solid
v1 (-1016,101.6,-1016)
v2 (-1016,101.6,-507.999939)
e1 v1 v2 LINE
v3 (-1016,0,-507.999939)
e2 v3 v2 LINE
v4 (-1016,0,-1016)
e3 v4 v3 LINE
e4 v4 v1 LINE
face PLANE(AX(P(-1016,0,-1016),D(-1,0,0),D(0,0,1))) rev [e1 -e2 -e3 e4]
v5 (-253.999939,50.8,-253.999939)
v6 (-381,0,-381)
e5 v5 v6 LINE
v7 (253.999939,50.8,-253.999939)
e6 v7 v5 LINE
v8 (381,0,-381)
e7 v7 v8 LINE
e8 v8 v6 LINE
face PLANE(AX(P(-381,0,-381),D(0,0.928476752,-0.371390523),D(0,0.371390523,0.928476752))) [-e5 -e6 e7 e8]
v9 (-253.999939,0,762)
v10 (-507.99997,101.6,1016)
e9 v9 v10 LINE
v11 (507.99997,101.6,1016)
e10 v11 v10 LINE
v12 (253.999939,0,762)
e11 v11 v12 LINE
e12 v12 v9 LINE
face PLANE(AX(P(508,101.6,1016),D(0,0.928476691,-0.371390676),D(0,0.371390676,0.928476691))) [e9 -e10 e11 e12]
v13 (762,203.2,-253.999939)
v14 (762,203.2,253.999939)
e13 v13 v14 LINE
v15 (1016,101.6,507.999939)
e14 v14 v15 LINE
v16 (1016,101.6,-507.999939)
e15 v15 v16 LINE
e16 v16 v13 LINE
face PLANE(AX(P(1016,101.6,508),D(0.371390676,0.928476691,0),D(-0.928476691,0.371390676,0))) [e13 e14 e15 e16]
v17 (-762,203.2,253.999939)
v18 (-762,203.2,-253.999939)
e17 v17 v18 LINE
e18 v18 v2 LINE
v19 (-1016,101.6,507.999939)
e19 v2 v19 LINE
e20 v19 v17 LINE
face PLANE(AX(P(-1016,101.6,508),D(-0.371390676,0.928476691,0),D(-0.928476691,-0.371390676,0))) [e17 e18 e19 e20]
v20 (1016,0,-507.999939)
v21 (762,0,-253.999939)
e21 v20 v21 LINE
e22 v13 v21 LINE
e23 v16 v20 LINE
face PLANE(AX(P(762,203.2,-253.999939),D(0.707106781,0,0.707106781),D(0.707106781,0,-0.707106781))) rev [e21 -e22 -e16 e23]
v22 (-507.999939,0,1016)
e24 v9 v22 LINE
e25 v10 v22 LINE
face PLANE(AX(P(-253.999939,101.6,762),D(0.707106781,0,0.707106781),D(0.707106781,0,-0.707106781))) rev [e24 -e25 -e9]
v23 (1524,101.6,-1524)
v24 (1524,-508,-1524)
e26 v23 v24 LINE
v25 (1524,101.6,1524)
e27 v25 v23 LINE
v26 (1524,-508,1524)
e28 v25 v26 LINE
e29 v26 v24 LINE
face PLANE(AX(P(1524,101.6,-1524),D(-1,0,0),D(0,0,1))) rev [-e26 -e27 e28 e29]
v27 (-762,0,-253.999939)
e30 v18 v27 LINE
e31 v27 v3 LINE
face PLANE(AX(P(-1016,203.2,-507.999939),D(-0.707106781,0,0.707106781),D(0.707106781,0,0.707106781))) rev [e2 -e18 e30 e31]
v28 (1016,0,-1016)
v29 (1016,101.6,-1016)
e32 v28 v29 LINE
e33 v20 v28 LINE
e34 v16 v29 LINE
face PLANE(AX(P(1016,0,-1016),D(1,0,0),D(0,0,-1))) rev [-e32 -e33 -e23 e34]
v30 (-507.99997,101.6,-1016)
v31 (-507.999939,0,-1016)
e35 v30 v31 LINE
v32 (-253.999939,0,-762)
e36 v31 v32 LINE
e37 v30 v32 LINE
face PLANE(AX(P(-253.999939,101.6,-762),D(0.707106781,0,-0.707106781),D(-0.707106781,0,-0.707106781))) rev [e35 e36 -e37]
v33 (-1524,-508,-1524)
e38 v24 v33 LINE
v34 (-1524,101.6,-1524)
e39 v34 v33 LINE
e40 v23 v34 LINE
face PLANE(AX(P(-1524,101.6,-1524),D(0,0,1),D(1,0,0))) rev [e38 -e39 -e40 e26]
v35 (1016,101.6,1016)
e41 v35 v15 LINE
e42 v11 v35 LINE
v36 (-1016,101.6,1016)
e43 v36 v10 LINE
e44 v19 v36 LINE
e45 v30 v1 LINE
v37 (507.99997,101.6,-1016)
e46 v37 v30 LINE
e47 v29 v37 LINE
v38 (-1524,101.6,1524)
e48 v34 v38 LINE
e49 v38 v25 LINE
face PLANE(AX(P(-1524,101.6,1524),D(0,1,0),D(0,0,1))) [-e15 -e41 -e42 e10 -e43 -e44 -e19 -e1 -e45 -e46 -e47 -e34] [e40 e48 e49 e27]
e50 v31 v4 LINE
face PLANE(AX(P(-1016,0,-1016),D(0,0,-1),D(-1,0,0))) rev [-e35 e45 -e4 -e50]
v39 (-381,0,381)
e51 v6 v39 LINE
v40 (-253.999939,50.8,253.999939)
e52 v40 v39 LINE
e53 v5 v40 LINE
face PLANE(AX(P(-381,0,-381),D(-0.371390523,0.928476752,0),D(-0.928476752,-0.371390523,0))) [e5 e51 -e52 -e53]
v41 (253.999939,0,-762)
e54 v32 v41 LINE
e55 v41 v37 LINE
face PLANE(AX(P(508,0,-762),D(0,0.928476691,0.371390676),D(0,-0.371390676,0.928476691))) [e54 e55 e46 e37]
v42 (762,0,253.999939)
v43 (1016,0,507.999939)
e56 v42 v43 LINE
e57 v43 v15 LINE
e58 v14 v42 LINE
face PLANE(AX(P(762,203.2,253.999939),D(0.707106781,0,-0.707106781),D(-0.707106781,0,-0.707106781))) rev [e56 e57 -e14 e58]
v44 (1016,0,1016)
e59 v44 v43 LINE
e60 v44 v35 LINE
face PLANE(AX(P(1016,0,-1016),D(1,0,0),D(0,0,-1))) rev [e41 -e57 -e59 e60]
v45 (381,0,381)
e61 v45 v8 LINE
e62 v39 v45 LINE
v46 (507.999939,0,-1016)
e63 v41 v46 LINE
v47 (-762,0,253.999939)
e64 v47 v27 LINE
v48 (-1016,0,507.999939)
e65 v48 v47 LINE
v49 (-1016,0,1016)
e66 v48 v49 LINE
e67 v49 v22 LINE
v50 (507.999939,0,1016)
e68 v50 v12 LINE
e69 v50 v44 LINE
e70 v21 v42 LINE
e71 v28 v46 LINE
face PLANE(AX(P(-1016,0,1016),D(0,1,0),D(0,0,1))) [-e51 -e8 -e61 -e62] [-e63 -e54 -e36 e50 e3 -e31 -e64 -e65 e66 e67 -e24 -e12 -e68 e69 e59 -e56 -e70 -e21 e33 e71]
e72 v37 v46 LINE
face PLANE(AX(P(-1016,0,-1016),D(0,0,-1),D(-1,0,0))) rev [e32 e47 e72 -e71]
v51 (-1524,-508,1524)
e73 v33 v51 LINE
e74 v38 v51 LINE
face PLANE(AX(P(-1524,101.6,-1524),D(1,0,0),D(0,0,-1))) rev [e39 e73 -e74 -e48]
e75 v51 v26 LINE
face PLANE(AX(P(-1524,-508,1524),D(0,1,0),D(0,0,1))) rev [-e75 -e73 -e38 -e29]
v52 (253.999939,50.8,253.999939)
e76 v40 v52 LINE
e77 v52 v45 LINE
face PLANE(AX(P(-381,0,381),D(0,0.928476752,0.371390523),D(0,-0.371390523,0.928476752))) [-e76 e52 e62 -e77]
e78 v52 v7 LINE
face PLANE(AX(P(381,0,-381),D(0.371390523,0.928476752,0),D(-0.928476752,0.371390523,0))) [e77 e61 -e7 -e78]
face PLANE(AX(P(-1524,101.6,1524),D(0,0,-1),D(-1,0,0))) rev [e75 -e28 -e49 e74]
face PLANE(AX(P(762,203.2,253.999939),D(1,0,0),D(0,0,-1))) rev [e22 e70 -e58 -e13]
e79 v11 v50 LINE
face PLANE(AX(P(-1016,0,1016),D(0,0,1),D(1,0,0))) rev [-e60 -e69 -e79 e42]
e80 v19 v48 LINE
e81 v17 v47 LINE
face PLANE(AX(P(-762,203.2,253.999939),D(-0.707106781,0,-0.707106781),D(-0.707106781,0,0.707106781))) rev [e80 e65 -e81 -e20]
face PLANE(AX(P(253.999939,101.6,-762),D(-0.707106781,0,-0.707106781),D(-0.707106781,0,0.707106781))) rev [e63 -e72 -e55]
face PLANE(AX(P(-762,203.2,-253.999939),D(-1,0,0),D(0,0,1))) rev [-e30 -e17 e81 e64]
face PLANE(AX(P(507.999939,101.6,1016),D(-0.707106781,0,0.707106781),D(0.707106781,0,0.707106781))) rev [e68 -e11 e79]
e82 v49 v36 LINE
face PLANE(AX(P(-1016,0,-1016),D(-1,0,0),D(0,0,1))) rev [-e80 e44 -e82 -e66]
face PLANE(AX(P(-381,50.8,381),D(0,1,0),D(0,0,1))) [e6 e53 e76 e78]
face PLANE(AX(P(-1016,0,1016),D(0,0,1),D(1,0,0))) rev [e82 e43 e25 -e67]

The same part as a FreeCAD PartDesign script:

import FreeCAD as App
import Part
import Sketcher
Q = App.Units.Quantity

doc = App.newDocument("Part")
body = doc.addObject("PartDesign::Body", "Body")

# Sketch on XZ plane
sketch1 = body.newObject("Sketcher::SketchObject", "Sketch")
sketch1.AttachmentSupport = (doc.getObject("XZ_Plane"), [""])
sketch1.MapMode = "FlatFace"
sketch1.addGeometry([
    Part.LineSegment(App.Vector(-1524, -1524, 0), App.Vector(-1524, 1524, 0)),
    Part.LineSegment(App.Vector(-1524, 1524, 0), App.Vector(1524, 1524, 0)),
    Part.LineSegment(App.Vector(1524, 1524, 0), App.Vector(1524, -1524, 0)),
    Part.LineSegment(App.Vector(1524, -1524, 0), App.Vector(-1524, -1524, 0)),
], False)
sketch1.addConstraint([
    Sketcher.Constraint("Coincident", 0, 2, 1, 1),
    Sketcher.Constraint("Coincident", 1, 2, 2, 1),
    Sketcher.Constraint("Coincident", 2, 2, 3, 1),
    Sketcher.Constraint("Coincident", 3, 2, 0, 1),
    Sketcher.Constraint("Vertical", 0),
    Sketcher.Constraint("Horizontal", 1),
    Sketcher.Constraint("Vertical", 2),
    Sketcher.Constraint("Horizontal", 3),
    Sketcher.Constraint("Symmetric", 0, 2, 2, 2, -1, 1),
    Sketcher.Constraint("Equal", 3, 0),
    Sketcher.Constraint("DistanceX", 1, 1, 1, 2, Q("120 in")),
])
pad1 = body.newObject("PartDesign::Pad", "Pad")
pad1.Profile = sketch1
pad1.Type = "TwoLengths"
pad1.Length = Q("4 in")
pad1.Length2 = Q("20 in")
pad1.Reversed = True

# Sketch on XZ plane
sketch2 = body.newObject("Sketcher::SketchObject", "Sketch001")
sketch2.AttachmentSupport = (doc.getObject("XZ_Plane"), [""])
sketch2.MapMode = "FlatFace"
sketch2.AttachmentOffset = App.Placement(App.Vector(0, 0, -4 * 25.4), App.Rotation())
sketch2.addGeometry([
    Part.LineSegment(App.Vector(-1016, -1016, 0), App.Vector(-1016, 1016, 0)),
    Part.LineSegment(App.Vector(-1016, 1016, 0), App.Vector(1016, 1016, 0)),
    Part.LineSegment(App.Vector(1016, 1016, 0), App.Vector(1016, -1016, 0)),
    Part.LineSegment(App.Vector(1016, -1016, 0), App.Vector(-1016, -1016, 0)),
], False)
sketch2.addConstraint([
    Sketcher.Constraint("Coincident", 0, 2, 1, 1),
    Sketcher.Constraint("Coincident", 1, 2, 2, 1),
    Sketcher.Constraint("Coincident", 2, 2, 3, 1),
    Sketcher.Constraint("Coincident", 3, 2, 0, 1),
    Sketcher.Constraint("Vertical", 0),
    Sketcher.Constraint("Horizontal", 1),
    Sketcher.Constraint("Vertical", 2),
    Sketcher.Constraint("Horizontal", 3),
    Sketcher.Constraint("Symmetric", 0, 2, 2, 2, -1, 1),
    Sketcher.Constraint("Equal", 3, 0),
    Sketcher.Constraint("DistanceX", 1, 1, 1, 2, Q("80 in")),
])
pocket1 = body.newObject("PartDesign::Pocket", "Pocket")
pocket1.Profile = sketch2
pocket1.Length = Q("4 in")
pocket1.Reversed = True

# Sketch on XZ plane
sketch3 = body.newObject("Sketcher::SketchObject", "Sketch002")
sketch3.AttachmentSupport = (doc.getObject("XZ_Plane"), [""])
sketch3.MapMode = "FlatFace"
sketch3.addGeometry([
    Part.LineSegment(App.Vector(-381, -381, 0), App.Vector(-381, 381, 0)),
    Part.LineSegment(App.Vector(-381, 381, 0), App.Vector(381, 381, 0)),
    Part.LineSegment(App.Vector(381, 381, 0), App.Vector(381, -381, 0)),
    Part.LineSegment(App.Vector(381, -381, 0), App.Vector(-381, -381, 0)),
], False)
sketch3.addConstraint([
    Sketcher.Constraint("Coincident", 0, 2, 1, 1),
    Sketcher.Constraint("Coincident", 1, 2, 2, 1),
    Sketcher.Constraint("Coincident", 2, 2, 3, 1),
    Sketcher.Constraint("Coincident", 3, 2, 0, 1),
    Sketcher.Constraint("Vertical", 0),
    Sketcher.Constraint("Horizontal", 1),
    Sketcher.Constraint("Vertical", 2),
    Sketcher.Constraint("Horizontal", 3),
    Sketcher.Constraint("Symmetric", 0, 2, 2, 2, -1, 1),
    Sketcher.Constraint("Equal", 3, 0),
    Sketcher.Constraint("DistanceX", 1, 1, 1, 2, Q("30 in")),
])
pad2 = body.newObject("PartDesign::Pad", "Pad001")
pad2.Profile = sketch3
pad2.Length = Q("2 in")
pad2.Reversed = True
pad2.TaperAngle = -68.1986

# Sketch on XZ plane
sketch4 = body.newObject("Sketcher::SketchObject", "Sketch003")
sketch4.AttachmentSupport = (doc.getObject("XZ_Plane"), [""])
sketch4.MapMode = "FlatFace"
sketch4.addGeometry([
    Part.LineSegment(App.Vector(-507.999939, -1016, 0), App.Vector(-253.999939, -762, 0)),  # 0
    Part.LineSegment(App.Vector(-253.999939, -762, 0), App.Vector(253.999939, -762, 0)),  # 1
    Part.LineSegment(App.Vector(253.999939, -762, 0), App.Vector(507.999939, -1016, 0)),  # 2
    Part.LineSegment(App.Vector(507.999939, -1016, 0), App.Vector(-507.999939, -1016, 0)),  # 3
    Part.LineSegment(App.Vector(253.999939, 762, 0), App.Vector(-253.999939, 762, 0)),  # 4
    Part.LineSegment(App.Vector(-253.999939, 762, 0), App.Vector(-507.999939, 1016, 0)),  # 5
    Part.LineSegment(App.Vector(-507.999939, 1016, 0), App.Vector(507.999939, 1016, 0)),  # 6
    Part.LineSegment(App.Vector(507.999939, 1016, 0), App.Vector(253.999939, 762, 0)),  # 7
], False)
sketch4.addConstraint([
    Sketcher.Constraint("Coincident", 0, 2, 1, 1),
    Sketcher.Constraint("Coincident", 1, 2, 2, 1),
    Sketcher.Constraint("Coincident", 2, 2, 3, 1),
    Sketcher.Constraint("Coincident", 3, 2, 0, 1),
    Sketcher.Constraint("Coincident", 4, 2, 5, 1),
    Sketcher.Constraint("Coincident", 5, 2, 6, 1),
    Sketcher.Constraint("Coincident", 6, 2, 7, 1),
    Sketcher.Constraint("Coincident", 7, 2, 4, 1),
    Sketcher.Constraint("Horizontal", 1),
    Sketcher.Constraint("Horizontal", 3),
    Sketcher.Constraint("Horizontal", 4),
    Sketcher.Constraint("Horizontal", 6),
    Sketcher.Constraint("Symmetric", 1, 2, 4, 2, -1, 1),
    Sketcher.Constraint("Symmetric", 2, 2, 5, 2, -1, 1),
    Sketcher.Constraint("Perpendicular", 0, 2),
    Sketcher.Constraint("Perpendicular", 5, 7),
    Sketcher.Constraint("Vertical", 0, 2, 4, 2),
    Sketcher.Constraint("Vertical", 3, 2, 5, 2),
    Sketcher.Constraint("Vertical", 2, 2, 6, 2),
    Sketcher.Constraint("DistanceY", 0, 2, -1, 1, Q("30 in")),
    Sketcher.Constraint("DistanceY", 2, 2, -1, 1, Q("40 in")),
    Sketcher.Constraint("DistanceX", 1, 1, 1, 2, 507.999878),
])
pad3 = body.newObject("PartDesign::Pad", "Pad002")
pad3.Profile = sketch4
pad3.Length = Q("4 in")
pad3.Reversed = True

# Sketch on YZ plane
sketch5 = body.newObject("Sketcher::SketchObject", "Sketch004")
sketch5.AttachmentSupport = (doc.getObject("YZ_Plane"), [""])
sketch5.MapMode = "FlatFace"
sketch5.addGeometry([
    Part.LineSegment(App.Vector(102, -762, 0), App.Vector(0, -762, 0)),  # 0
    Part.LineSegment(App.Vector(0, -762, 0), App.Vector(102, -1016, 0)),  # 1
    Part.LineSegment(App.Vector(102, -1016, 0), App.Vector(102, -762, 0)),  # 2
    Part.LineSegment(App.Vector(102, 1016, 0), App.Vector(0, 762, 0)),  # 3
    Part.LineSegment(App.Vector(0, 762, 0), App.Vector(102, 762, 0)),  # 4
    Part.LineSegment(App.Vector(102, 762, 0), App.Vector(102, 1016, 0)),  # 5
], False)
sketch5.addConstraint([
    Sketcher.Constraint("Coincident", 0, 2, 1, 1),
    Sketcher.Constraint("Coincident", 1, 2, 2, 1),
    Sketcher.Constraint("Coincident", 2, 2, 0, 1),
    Sketcher.Constraint("Coincident", 3, 2, 4, 1),
    Sketcher.Constraint("Coincident", 4, 2, 5, 1),
    Sketcher.Constraint("Coincident", 5, 2, 3, 1),
    Sketcher.Constraint("Horizontal", 0),
    Sketcher.Constraint("Vertical", 2),
    Sketcher.Constraint("Horizontal", 4),
    Sketcher.Constraint("Vertical", 5),
    Sketcher.Constraint("Symmetric", 0, 2, 3, 2, -1, 1),
    Sketcher.Constraint("Symmetric", 1, 2, 5, 2, -1),
    Sketcher.Constraint("PointOnObject", 0, 2, -2),
    Sketcher.Constraint("DistanceX", 0, 2, 0, 1, Q("4 in")),
    Sketcher.Constraint("DistanceY", 2, 1, 2, 2, Q("10 in")),
    Sketcher.Constraint("DistanceY", 0, 2, -1, 1, Q("30 in")),
])
pocket2 = body.newObject("PartDesign::Pocket", "Pocket001")
pocket2.Profile = sketch5
pocket2.Type = "TwoLengths"
pocket2.Length = Q("20 in")
pocket2.Length2 = Q("20 in")
pocket2.Reversed = True

# Sketch on XZ plane
sketch6 = body.newObject("Sketcher::SketchObject", "Sketch005")
sketch6.AttachmentSupport = (doc.getObject("XZ_Plane"), [""])
sketch6.MapMode = "FlatFace"
sketch6.addGeometry([
    Part.LineSegment(App.Vector(1016, -507.999939, 0), App.Vector(762, -253.999939, 0)),  # 0
    Part.LineSegment(App.Vector(762, -253.999939, 0), App.Vector(762, 253.999939, 0)),  # 1
    Part.LineSegment(App.Vector(762, 253.999939, 0), App.Vector(1016, 507.999939, 0)),  # 2
    Part.LineSegment(App.Vector(1016, 507.999939, 0), App.Vector(1016, -507.999939, 0)),  # 3
    Part.LineSegment(App.Vector(-762, 253.999939, 0), App.Vector(-762, -253.999939, 0)),  # 4
    Part.LineSegment(App.Vector(-762, -253.999939, 0), App.Vector(-1016, -507.999939, 0)),  # 5
    Part.LineSegment(App.Vector(-1016, -507.999939, 0), App.Vector(-1016, 507.999939, 0)),  # 6
    Part.LineSegment(App.Vector(-1016, 507.999939, 0), App.Vector(-762, 253.999939, 0)),  # 7
], False)
sketch6.addConstraint([
    Sketcher.Constraint("Coincident", 0, 2, 1, 1),
    Sketcher.Constraint("Coincident", 1, 2, 2, 1),
    Sketcher.Constraint("Coincident", 2, 2, 3, 1),
    Sketcher.Constraint("Coincident", 3, 2, 0, 1),
    Sketcher.Constraint("Coincident", 4, 2, 5, 1),
    Sketcher.Constraint("Coincident", 5, 2, 6, 1),
    Sketcher.Constraint("Coincident", 6, 2, 7, 1),
    Sketcher.Constraint("Coincident", 7, 2, 4, 1),
    Sketcher.Constraint("Vertical", 1),
    Sketcher.Constraint("Vertical", 3),
    Sketcher.Constraint("Vertical", 4),
    Sketcher.Constraint("Vertical", 6),
    Sketcher.Constraint("Symmetric", 1, 2, 4, 2, -1, 1),
    Sketcher.Constraint("Symmetric", 2, 2, 5, 2, -1, 1),
    Sketcher.Constraint("Perpendicular", 0, 2),
    Sketcher.Constraint("Perpendicular", 5, 7),
    Sketcher.Constraint("Horizontal", 0, 2, 4, 2),
    Sketcher.Constraint("Horizontal", 3, 2, 5, 2),
    Sketcher.Constraint("Horizontal", 2, 2, 6, 2),
    Sketcher.Constraint("DistanceX", -1, 1, 0, 2, Q("30 in")),
    Sketcher.Constraint("DistanceX", -1, 1, 2, 2, Q("40 in")),
    Sketcher.Constraint("DistanceY", 1, 1, 1, 2, 507.999878),
])
pad4 = body.newObject("PartDesign::Pad", "Pad003")
pad4.Profile = sketch6
pad4.Length = Q("8 in")
pad4.Reversed = True

# Sketch on XY plane
sketch7 = body.newObject("Sketcher::SketchObject", "Sketch006")
sketch7.AttachmentSupport = (doc.getObject("XY_Plane"), [""])
sketch7.MapMode = "FlatFace"
sketch7.addGeometry([
    Part.LineSegment(App.Vector(-1016, 203, 0), App.Vector(-1016, 102, 0)),  # 0
    Part.LineSegment(App.Vector(-1016, 102, 0), App.Vector(-762, 203, 0)),  # 1
    Part.LineSegment(App.Vector(-762, 203, 0), App.Vector(-1016, 203, 0)),  # 2
    Part.LineSegment(App.Vector(1016, 102, 0), App.Vector(1016, 203, 0)),  # 3
    Part.LineSegment(App.Vector(1016, 203, 0), App.Vector(762, 203, 0)),  # 4
    Part.LineSegment(App.Vector(762, 203, 0), App.Vector(1016, 102, 0)),  # 5
], False)
sketch7.addConstraint([
    Sketcher.Constraint("Coincident", 0, 2, 1, 1),
    Sketcher.Constraint("Coincident", 1, 2, 2, 1),
    Sketcher.Constraint("Coincident", 2, 2, 0, 1),
    Sketcher.Constraint("Coincident", 3, 2, 4, 1),
    Sketcher.Constraint("Coincident", 4, 2, 5, 1),
    Sketcher.Constraint("Coincident", 5, 2, 3, 1),
    Sketcher.Constraint("Vertical", 0),
    Sketcher.Constraint("Horizontal", 2),
    Sketcher.Constraint("Vertical", 3),
    Sketcher.Constraint("Horizontal", 4),
    Sketcher.Constraint("Symmetric", 2, 2, 3, 2, -2),
    Sketcher.Constraint("Horizontal", 0, 2, 5, 2),
    Sketcher.Constraint("Equal", 2, 4),
    Sketcher.Constraint("DistanceX", 2, 2, 2, 1, Q("10 in")),
    Sketcher.Constraint("DistanceY", 0, 2, 0, 1, Q("4 in")),
    Sketcher.Constraint("DistanceX", 0, 2, -1, 1, Q("40 in")),
    Sketcher.Constraint("DistanceY", -1, 1, 0, 2, Q("4 in")),
])
pocket3 = body.newObject("PartDesign::Pocket", "Pocket002")
pocket3.Profile = sketch7
pocket3.Type = "ThroughAll"
pocket3.Midplane = True

doc.recompute()
